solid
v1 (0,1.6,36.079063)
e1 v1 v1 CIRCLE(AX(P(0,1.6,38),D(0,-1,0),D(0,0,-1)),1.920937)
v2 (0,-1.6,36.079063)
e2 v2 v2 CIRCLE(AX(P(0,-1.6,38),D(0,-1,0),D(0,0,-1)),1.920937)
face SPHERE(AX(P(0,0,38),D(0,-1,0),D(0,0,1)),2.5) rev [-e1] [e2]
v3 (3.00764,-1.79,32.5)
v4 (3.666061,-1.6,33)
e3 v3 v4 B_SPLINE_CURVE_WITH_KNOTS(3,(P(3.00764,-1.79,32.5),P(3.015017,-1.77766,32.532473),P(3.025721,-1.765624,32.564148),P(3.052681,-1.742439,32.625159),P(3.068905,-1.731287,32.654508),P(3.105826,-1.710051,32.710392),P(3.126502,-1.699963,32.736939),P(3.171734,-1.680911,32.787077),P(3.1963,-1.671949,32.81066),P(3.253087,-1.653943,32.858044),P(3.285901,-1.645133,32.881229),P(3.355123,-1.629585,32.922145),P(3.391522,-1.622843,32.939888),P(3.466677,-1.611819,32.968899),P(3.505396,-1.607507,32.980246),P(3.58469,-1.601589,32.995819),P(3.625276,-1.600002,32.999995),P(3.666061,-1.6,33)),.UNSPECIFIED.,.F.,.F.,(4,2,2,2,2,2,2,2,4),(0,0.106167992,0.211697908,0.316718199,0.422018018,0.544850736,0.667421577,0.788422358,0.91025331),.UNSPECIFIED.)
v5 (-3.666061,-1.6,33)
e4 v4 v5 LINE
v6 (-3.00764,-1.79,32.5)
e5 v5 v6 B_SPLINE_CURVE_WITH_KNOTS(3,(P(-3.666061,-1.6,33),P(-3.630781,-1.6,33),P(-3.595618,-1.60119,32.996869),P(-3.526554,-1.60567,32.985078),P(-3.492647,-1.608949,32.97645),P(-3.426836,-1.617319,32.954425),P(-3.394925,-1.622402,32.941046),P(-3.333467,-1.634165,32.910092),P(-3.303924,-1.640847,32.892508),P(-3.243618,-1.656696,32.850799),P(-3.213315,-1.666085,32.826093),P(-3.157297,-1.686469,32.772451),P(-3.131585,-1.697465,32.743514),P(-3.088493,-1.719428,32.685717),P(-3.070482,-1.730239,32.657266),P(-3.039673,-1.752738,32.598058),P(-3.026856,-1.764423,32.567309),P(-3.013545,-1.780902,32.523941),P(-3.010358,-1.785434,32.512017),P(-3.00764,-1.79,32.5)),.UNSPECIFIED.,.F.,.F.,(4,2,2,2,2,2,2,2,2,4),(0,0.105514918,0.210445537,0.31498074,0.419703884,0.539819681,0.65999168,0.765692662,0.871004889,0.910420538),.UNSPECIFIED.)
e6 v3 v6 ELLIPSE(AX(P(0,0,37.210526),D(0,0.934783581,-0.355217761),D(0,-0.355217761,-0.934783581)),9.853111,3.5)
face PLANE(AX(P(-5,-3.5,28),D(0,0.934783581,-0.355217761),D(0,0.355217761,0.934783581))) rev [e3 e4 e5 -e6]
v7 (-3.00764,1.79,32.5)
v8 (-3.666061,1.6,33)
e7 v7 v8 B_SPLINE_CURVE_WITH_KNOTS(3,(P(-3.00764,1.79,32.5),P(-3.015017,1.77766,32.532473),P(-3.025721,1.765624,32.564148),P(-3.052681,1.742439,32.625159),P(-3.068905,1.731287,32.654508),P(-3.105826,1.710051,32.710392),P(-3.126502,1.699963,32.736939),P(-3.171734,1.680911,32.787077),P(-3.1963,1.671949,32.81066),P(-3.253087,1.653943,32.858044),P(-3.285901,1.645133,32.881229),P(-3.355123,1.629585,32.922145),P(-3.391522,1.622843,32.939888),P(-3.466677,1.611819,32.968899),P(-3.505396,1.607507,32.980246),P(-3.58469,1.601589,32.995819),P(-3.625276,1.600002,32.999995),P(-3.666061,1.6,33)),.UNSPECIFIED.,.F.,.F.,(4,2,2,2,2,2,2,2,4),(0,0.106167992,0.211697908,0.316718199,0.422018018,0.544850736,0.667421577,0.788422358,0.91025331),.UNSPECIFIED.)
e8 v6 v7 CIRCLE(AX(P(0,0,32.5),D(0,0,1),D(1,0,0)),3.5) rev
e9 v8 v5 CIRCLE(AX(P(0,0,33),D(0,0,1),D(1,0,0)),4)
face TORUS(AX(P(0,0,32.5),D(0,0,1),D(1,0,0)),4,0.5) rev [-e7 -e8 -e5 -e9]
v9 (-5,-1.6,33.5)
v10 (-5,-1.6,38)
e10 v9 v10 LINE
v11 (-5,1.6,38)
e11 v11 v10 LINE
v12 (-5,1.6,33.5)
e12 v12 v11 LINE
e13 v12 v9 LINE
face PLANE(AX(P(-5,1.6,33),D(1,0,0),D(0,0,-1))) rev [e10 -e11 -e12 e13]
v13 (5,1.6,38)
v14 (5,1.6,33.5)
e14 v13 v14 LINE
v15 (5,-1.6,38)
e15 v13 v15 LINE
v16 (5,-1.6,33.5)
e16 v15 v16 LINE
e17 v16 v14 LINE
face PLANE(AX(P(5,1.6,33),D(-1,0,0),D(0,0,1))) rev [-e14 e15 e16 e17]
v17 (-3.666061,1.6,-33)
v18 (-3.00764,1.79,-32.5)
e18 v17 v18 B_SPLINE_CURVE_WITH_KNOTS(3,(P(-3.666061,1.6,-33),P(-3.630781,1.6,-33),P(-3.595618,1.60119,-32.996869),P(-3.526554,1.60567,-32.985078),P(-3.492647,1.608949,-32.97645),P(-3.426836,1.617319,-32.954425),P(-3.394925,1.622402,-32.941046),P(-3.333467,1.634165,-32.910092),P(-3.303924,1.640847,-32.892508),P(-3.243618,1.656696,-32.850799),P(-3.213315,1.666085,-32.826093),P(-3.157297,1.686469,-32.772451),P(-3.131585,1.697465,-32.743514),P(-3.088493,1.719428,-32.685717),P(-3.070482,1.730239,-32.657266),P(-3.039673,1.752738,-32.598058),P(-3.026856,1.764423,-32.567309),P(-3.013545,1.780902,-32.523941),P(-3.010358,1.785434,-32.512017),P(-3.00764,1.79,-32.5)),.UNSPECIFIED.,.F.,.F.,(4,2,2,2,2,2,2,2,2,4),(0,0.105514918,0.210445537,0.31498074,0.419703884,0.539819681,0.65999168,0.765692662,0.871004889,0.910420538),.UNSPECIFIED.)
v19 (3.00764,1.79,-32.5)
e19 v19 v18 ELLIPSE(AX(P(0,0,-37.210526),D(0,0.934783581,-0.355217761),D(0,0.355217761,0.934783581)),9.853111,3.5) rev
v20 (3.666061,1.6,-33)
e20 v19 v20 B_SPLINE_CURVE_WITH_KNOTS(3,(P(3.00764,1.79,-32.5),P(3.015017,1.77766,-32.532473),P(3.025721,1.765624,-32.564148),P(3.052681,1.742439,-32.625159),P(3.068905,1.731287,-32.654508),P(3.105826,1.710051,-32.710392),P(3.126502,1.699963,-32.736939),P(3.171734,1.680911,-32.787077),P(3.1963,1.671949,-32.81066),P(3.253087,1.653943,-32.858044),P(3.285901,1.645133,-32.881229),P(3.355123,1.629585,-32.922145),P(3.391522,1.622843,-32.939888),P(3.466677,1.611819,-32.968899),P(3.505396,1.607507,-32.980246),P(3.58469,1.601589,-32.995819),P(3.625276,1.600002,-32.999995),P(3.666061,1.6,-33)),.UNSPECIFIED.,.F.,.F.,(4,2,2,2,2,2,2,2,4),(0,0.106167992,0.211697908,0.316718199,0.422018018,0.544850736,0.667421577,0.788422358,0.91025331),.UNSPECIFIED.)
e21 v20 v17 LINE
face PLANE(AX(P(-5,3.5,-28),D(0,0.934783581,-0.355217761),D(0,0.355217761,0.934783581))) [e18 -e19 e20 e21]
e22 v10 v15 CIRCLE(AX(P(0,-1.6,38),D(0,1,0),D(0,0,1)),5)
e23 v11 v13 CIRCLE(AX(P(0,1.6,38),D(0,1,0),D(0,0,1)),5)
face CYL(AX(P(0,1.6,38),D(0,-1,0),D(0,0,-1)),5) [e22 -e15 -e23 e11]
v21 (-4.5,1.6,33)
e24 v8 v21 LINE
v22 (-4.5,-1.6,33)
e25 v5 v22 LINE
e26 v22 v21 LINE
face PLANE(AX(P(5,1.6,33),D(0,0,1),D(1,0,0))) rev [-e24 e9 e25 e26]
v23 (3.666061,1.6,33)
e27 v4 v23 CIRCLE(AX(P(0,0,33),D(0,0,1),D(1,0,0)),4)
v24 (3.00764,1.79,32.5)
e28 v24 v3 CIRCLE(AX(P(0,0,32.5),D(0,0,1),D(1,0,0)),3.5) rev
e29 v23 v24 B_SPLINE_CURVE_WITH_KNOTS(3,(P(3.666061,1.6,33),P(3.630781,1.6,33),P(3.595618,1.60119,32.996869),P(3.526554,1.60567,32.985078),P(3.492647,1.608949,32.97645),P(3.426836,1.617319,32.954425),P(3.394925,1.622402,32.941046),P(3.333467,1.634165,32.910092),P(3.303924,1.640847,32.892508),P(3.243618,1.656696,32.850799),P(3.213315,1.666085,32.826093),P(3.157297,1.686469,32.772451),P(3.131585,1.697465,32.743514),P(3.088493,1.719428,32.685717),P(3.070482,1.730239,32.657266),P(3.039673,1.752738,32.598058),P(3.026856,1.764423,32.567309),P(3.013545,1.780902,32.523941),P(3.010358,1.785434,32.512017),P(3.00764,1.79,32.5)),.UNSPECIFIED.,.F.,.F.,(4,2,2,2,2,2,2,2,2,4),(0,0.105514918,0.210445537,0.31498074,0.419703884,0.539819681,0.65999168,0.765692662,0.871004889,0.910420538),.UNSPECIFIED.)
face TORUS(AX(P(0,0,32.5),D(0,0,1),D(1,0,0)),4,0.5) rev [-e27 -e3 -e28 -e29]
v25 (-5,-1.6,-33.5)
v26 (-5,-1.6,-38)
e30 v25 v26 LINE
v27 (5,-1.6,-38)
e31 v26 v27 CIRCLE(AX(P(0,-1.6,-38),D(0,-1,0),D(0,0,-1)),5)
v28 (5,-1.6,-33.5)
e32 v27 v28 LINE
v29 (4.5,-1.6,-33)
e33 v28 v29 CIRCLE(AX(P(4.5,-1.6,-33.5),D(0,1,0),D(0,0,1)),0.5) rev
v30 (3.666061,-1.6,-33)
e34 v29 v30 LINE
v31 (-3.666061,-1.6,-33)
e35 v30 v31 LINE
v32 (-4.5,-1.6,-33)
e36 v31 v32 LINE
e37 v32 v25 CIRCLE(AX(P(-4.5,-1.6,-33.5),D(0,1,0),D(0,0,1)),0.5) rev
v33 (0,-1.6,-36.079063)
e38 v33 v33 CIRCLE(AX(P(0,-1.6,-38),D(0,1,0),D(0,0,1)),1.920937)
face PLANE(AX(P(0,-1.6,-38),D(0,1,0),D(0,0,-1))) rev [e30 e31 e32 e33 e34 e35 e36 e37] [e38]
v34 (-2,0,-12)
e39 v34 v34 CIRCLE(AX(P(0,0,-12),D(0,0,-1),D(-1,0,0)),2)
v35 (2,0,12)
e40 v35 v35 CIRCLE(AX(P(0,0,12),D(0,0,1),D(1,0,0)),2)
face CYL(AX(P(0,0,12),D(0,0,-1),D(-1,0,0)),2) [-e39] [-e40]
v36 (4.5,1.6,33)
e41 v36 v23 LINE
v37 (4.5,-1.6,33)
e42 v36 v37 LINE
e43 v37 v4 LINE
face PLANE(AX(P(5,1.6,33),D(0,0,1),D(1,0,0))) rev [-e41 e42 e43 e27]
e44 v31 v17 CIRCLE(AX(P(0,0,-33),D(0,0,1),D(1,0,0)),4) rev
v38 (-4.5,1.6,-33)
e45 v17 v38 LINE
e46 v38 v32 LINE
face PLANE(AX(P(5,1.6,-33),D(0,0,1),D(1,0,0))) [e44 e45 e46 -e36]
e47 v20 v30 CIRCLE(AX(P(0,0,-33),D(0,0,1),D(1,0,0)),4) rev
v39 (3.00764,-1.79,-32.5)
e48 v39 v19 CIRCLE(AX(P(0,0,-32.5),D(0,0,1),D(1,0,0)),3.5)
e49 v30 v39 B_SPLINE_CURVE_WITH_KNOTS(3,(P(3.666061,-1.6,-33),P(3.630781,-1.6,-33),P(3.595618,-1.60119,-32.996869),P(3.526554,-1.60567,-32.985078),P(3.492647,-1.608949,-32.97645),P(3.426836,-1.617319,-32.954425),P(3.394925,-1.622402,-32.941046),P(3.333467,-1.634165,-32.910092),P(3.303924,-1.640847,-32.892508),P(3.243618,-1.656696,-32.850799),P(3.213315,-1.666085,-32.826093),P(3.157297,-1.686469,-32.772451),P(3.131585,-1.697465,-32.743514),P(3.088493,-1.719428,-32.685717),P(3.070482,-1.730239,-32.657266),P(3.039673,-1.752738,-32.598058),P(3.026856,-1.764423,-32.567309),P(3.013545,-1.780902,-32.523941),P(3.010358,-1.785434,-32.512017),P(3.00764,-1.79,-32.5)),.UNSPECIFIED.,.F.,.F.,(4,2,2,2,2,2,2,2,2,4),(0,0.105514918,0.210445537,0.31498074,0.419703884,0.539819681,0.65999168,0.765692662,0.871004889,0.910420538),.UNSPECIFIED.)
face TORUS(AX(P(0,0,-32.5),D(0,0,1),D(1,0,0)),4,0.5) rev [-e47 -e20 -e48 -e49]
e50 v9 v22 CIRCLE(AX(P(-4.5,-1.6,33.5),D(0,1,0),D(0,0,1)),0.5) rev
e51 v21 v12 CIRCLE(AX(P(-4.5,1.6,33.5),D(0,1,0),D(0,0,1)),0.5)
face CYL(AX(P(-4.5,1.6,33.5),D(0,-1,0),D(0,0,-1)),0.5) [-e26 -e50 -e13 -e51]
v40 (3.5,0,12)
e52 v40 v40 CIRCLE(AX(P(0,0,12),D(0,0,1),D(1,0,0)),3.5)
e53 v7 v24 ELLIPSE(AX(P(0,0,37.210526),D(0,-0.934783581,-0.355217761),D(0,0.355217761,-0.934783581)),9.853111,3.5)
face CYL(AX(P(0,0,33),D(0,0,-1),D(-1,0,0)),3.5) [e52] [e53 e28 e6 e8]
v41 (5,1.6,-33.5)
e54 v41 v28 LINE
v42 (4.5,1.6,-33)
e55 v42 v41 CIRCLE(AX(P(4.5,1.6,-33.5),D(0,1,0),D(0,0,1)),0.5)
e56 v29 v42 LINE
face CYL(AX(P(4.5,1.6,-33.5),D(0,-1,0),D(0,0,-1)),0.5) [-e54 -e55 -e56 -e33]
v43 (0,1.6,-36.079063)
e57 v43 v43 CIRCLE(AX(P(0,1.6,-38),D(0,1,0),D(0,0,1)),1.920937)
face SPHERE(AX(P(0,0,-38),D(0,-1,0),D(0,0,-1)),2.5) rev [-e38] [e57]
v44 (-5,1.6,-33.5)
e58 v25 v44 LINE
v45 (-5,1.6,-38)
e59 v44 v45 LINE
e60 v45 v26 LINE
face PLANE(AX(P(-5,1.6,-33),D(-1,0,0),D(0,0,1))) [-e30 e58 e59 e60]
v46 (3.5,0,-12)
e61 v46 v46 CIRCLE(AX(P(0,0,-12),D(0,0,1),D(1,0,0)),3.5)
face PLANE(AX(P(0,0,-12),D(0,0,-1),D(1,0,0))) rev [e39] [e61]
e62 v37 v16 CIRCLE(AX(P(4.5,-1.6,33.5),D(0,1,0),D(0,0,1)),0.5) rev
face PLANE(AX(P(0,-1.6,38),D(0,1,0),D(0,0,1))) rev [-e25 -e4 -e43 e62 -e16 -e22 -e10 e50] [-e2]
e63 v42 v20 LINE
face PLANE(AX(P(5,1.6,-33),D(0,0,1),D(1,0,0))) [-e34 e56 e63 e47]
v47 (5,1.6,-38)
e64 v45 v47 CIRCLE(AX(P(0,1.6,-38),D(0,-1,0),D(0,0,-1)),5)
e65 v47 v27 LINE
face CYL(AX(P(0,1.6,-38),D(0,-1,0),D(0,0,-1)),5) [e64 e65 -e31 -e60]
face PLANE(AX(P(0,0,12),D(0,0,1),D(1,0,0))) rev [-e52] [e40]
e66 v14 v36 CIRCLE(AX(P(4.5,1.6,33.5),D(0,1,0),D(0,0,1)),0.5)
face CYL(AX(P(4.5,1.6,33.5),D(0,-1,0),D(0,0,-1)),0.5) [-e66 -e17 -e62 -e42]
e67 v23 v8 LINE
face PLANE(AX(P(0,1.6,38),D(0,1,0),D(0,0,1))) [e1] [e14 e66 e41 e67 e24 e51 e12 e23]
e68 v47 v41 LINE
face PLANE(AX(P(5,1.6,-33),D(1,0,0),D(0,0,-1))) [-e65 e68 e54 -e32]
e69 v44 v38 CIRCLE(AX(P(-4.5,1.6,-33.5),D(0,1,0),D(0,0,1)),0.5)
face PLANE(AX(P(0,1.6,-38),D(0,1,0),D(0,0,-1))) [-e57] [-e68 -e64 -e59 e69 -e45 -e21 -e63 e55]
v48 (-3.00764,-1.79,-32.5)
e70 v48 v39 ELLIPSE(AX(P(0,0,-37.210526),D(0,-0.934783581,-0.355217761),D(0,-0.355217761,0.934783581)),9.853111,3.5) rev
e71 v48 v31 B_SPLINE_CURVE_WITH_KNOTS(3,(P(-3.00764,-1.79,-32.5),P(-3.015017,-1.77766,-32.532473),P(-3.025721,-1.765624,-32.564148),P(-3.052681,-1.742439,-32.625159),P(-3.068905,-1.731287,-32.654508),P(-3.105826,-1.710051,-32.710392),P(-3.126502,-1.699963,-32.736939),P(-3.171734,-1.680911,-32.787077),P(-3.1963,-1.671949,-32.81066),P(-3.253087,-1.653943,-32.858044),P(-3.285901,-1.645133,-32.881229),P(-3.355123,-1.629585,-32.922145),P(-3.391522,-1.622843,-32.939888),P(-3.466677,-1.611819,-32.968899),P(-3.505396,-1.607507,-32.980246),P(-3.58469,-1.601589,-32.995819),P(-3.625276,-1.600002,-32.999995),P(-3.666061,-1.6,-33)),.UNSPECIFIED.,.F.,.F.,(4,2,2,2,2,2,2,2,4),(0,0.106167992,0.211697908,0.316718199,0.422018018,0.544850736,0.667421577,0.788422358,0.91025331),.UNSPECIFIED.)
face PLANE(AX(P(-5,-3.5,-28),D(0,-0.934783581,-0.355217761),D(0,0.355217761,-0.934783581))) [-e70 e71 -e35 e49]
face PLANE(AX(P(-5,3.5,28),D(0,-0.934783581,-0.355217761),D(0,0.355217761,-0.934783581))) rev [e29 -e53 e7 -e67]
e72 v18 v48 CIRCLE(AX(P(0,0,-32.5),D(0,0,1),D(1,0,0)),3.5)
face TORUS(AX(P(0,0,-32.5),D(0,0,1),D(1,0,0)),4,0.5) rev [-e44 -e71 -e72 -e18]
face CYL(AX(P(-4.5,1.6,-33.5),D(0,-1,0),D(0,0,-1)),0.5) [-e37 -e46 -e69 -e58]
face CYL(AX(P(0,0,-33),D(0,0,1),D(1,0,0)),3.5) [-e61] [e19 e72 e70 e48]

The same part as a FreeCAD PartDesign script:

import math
import FreeCAD as App
import Part
import Sketcher
from FreeCAD import Vector


def edges_at(feature, points):
    """Names of the edges that pass closest to the given points."""
    edges = feature.Shape.Edges
    near = lambda p: min(range(len(edges)), key=lambda i: edges[i].distToShape(Part.Vertex(*p))[0])
    return sorted({f"Edge{near(p) + 1}" for p in points})


def add_polygon(sketch, points):
    """Adds a closed chain of lines whose ends are joined by coincident constraints."""
    first, n = sketch.GeometryCount, len(points)
    for a, b in zip(points, points[1:] + points[:1]):
        sketch.addGeometry(Part.LineSegment(App.Vector(*a, 0), App.Vector(*b, 0)), False)
    for i in range(n):
        sketch.addConstraint(Sketcher.Constraint("Coincident", first + i, 2, first + (i + 1) % n, 1))

doc = App.newDocument("Part")
body = doc.addObject("PartDesign::Body", "Body")

sketch1 = body.newObject("Sketcher::SketchObject", "Sketch")
sketch1.AttachmentSupport = (doc.getObject("XY_Plane"), [""])
sketch1.MapMode = "FlatFace"
sketch1.addGeometry(Part.Circle(Vector(0, 0, 0), Vector(0, 0, 1), 2), False)
sketch1.addConstraint(Sketcher.Constraint("Coincident", 0, 3, -1, 1))
sketch1.addConstraint(Sketcher.Constraint("Diameter", 0, 4.0))
pad1 = body.newObject("PartDesign::Pad", "Pad")
pad1.Profile = sketch1
pad1.Length = 12

sketch2 = body.newObject("Sketcher::SketchObject", "Sketch001")
sketch2.AttachmentSupport = (doc.getObject("XY_Plane"), [""])
sketch2.MapMode = "FlatFace"
sketch2.AttachmentOffset = App.Placement(Vector(0, 0, 12), App.Rotation())
sketch2.addGeometry(Part.Circle(Vector(0, 0, 0), Vector(0, 0, 1), 3.5), False)
sketch2.addConstraint(Sketcher.Constraint("Coincident", 0, 3, -1, 1))
sketch2.addConstraint(Sketcher.Constraint("Diameter", 0, 7.0))
pad2 = body.newObject("PartDesign::Pad", "Pad001")
pad2.Profile = sketch2
pad2.Length = 21

sketch3 = body.newObject("Sketcher::SketchObject", "Sketch002")
sketch3.AttachmentSupport = (doc.getObject("XZ_Plane"), [""])
sketch3.MapMode = "FlatFace"
sketch3.addGeometry(Part.LineSegment(Vector(5, 33, 0), Vector(-5, 33, 0)), False)
sketch3.addGeometry(Part.LineSegment(Vector(-5, 33, 0), Vector(-5, 38, 0)), False)
sketch3.addGeometry(Part.ArcOfCircle(Part.Circle(Vector(0, 38, 0), Vector(0, 0, 1), 5), math.radians(0), math.radians(180)), False)
sketch3.addGeometry(Part.LineSegment(Vector(5, 38, 0), Vector(5, 33, 0)), False)
sketch3.addConstraint(Sketcher.Constraint("Coincident", 0, 2, 1, 1))
sketch3.addConstraint(Sketcher.Constraint("Tangent", 1, 2, 2, 2))
sketch3.addConstraint(Sketcher.Constraint("Tangent", 2, 1, 3, 1))
sketch3.addConstraint(Sketcher.Constraint("Coincident", 3, 2, 0, 1))
sketch3.addConstraint(Sketcher.Constraint("Horizontal", 0))
sketch3.addConstraint(Sketcher.Constraint("Vertical", 1))
sketch3.addConstraint(Sketcher.Constraint("Vertical", 3))
sketch3.addConstraint(Sketcher.Constraint("PointOnObject", 2, 3, -2))
sketch3.addConstraint(Sketcher.Constraint("Radius", 2, 5.0))
sketch3.addConstraint(Sketcher.Constraint("DistanceY", 1, 1, 1, 2, 5.0))
sketch3.addConstraint(Sketcher.Constraint("DistanceY", -1, 1, 2, 3, 38.0))
pad3 = body.newObject("PartDesign::Pad", "Pad002")
pad3.Profile = sketch3
pad3.Length = 3.2
pad3.Midplane = True

sketch4 = body.newObject("Sketcher::SketchObject", "Sketch003")
sketch4.AttachmentSupport = (doc.getObject("YZ_Plane"), [""])
sketch4.MapMode = "FlatFace"
add_polygon(sketch4, [(-3.5, 28), (-1.6, 33), (-3.5, 33)])
add_polygon(sketch4, [(1.6, 33), (3.5, 28), (3.5, 33)])
sketch4.addConstraint(Sketcher.Constraint("Horizontal", 1))
sketch4.addConstraint(Sketcher.Constraint("Vertical", 2))
sketch4.addConstraint(Sketcher.Constraint("Vertical", 4))
sketch4.addConstraint(Sketcher.Constraint("Horizontal", 5))
sketch4.addConstraint(Sketcher.Constraint("Symmetric", 2, 2, 3, 2, -2))
sketch4.addConstraint(Sketcher.Constraint("Symmetric", 0, 2, 5, 2, -2))
sketch4.addConstraint(Sketcher.Constraint("DistanceY", 2, 2, 2, 1, 5.0))
sketch4.addConstraint(Sketcher.Constraint("DistanceX", 1, 2, 1, 1, 1.9))
sketch4.addConstraint(Sketcher.Constraint("DistanceY", -1, 1, 0, 2, 33.0))
sketch4.addConstraint(Sketcher.Constraint("DistanceX", 2, 2, 3, 2, 7.0))
pocket1 = body.newObject("PartDesign::Pocket", "Pocket")
pocket1.Profile = sketch4
pocket1.Length = 12
pocket1.Midplane = True
doc.recompute()

fillet = body.newObject("PartDesign::Fillet", "Fillet")
fillet.Base = (pocket1, edges_at(pocket1, [
    (-5, 0, 33),
    (3.402, -0.823, 33),
    (-3.5, 0, 33),
    (5, 0, 33),
]))
fillet.Radius = 0.5

sketch5 = body.newObject("Sketcher::SketchObject", "Sketch004")
sketch5.AttachmentSupport = (doc.getObject("YZ_Plane"), [""])
sketch5.MapMode = "FlatFace"
sketch5.addGeometry(Part.LineSegment(Vector(-1.6, 39.920937, 0), Vector(-1.6, 38, 0)), False)
sketch5.addGeometry(Part.LineSegment(Vector(-1.6, 38, 0), Vector(1.6, 38, 0)), False)
sketch5.addGeometry(Part.LineSegment(Vector(1.6, 38, 0), Vector(1.6, 39.920937, 0)), False)
sketch5.addGeometry(Part.ArcOfCircle(Part.Circle(Vector(0, 38, 0), Vector(0, 0, 1), 2.5), math.radians(50.20818), math.radians(129.79182)), False)
sketch5.addGeometry(Part.LineSegment(Vector(-1.6, 38, 0), Vector(1.6, 38, 0)), True)
sketch5.addConstraint(Sketcher.Constraint("Coincident", 0, 2, 1, 1))
sketch5.addConstraint(Sketcher.Constraint("Coincident", 1, 2, 2, 1))
sketch5.addConstraint(Sketcher.Constraint("Coincident", 2, 2, 3, 1))
sketch5.addConstraint(Sketcher.Constraint("Coincident", 3, 2, 0, 1))
sketch5.addConstraint(Sketcher.Constraint("Vertical", 0))
sketch5.addConstraint(Sketcher.Constraint("Horizontal", 1))
sketch5.addConstraint(Sketcher.Constraint("Vertical", 2))
sketch5.addConstraint(Sketcher.Constraint("Horizontal", 4))
sketch5.addConstraint(Sketcher.Constraint("Coincident", 4, 1, 0, 2))
sketch5.addConstraint(Sketcher.Constraint("Symmetric", 2, 2, 3, 2, -2))
sketch5.addConstraint(Sketcher.Constraint("Horizontal", 3, 3, 0, 2))
sketch5.addConstraint(Sketcher.Constraint("Vertical", 2, 2, 4, 2))
sketch5.addConstraint(Sketcher.Constraint("Radius", 3, 2.5))
sketch5.addConstraint(Sketcher.Constraint("DistanceX", 1, 1, 1, 2, 3.2))
sketch5.addConstraint(Sketcher.Constraint("DistanceY", -1, 1, 3, 3, 38.0))
groove = body.newObject("PartDesign::Groove", "Groove")
groove.Profile = sketch5
groove.ReferenceAxis = (sketch5, ["Axis0"])
groove.Angle = 360
doc.recompute()

mirrored = body.newObject("PartDesign::Mirrored", "Mirrored")
mirrored.Originals = [pad1, pad2, pad3, pocket1, groove]
mirrored.MirrorPlane = (doc.getObject("XY_Plane"), [""])
body.Tip = mirrored
doc.recompute()

fillet2 = body.newObject("PartDesign::Fillet", "Fillet001")
fillet2.Base = (mirrored, edges_at(mirrored, [
    (-5, 0, -33),
    (3.402, -0.823, -33),
    (-3.5, 0, -33),
    (5, 0, -33),
]))
fillet2.Radius = 0.5

doc.recompute()
